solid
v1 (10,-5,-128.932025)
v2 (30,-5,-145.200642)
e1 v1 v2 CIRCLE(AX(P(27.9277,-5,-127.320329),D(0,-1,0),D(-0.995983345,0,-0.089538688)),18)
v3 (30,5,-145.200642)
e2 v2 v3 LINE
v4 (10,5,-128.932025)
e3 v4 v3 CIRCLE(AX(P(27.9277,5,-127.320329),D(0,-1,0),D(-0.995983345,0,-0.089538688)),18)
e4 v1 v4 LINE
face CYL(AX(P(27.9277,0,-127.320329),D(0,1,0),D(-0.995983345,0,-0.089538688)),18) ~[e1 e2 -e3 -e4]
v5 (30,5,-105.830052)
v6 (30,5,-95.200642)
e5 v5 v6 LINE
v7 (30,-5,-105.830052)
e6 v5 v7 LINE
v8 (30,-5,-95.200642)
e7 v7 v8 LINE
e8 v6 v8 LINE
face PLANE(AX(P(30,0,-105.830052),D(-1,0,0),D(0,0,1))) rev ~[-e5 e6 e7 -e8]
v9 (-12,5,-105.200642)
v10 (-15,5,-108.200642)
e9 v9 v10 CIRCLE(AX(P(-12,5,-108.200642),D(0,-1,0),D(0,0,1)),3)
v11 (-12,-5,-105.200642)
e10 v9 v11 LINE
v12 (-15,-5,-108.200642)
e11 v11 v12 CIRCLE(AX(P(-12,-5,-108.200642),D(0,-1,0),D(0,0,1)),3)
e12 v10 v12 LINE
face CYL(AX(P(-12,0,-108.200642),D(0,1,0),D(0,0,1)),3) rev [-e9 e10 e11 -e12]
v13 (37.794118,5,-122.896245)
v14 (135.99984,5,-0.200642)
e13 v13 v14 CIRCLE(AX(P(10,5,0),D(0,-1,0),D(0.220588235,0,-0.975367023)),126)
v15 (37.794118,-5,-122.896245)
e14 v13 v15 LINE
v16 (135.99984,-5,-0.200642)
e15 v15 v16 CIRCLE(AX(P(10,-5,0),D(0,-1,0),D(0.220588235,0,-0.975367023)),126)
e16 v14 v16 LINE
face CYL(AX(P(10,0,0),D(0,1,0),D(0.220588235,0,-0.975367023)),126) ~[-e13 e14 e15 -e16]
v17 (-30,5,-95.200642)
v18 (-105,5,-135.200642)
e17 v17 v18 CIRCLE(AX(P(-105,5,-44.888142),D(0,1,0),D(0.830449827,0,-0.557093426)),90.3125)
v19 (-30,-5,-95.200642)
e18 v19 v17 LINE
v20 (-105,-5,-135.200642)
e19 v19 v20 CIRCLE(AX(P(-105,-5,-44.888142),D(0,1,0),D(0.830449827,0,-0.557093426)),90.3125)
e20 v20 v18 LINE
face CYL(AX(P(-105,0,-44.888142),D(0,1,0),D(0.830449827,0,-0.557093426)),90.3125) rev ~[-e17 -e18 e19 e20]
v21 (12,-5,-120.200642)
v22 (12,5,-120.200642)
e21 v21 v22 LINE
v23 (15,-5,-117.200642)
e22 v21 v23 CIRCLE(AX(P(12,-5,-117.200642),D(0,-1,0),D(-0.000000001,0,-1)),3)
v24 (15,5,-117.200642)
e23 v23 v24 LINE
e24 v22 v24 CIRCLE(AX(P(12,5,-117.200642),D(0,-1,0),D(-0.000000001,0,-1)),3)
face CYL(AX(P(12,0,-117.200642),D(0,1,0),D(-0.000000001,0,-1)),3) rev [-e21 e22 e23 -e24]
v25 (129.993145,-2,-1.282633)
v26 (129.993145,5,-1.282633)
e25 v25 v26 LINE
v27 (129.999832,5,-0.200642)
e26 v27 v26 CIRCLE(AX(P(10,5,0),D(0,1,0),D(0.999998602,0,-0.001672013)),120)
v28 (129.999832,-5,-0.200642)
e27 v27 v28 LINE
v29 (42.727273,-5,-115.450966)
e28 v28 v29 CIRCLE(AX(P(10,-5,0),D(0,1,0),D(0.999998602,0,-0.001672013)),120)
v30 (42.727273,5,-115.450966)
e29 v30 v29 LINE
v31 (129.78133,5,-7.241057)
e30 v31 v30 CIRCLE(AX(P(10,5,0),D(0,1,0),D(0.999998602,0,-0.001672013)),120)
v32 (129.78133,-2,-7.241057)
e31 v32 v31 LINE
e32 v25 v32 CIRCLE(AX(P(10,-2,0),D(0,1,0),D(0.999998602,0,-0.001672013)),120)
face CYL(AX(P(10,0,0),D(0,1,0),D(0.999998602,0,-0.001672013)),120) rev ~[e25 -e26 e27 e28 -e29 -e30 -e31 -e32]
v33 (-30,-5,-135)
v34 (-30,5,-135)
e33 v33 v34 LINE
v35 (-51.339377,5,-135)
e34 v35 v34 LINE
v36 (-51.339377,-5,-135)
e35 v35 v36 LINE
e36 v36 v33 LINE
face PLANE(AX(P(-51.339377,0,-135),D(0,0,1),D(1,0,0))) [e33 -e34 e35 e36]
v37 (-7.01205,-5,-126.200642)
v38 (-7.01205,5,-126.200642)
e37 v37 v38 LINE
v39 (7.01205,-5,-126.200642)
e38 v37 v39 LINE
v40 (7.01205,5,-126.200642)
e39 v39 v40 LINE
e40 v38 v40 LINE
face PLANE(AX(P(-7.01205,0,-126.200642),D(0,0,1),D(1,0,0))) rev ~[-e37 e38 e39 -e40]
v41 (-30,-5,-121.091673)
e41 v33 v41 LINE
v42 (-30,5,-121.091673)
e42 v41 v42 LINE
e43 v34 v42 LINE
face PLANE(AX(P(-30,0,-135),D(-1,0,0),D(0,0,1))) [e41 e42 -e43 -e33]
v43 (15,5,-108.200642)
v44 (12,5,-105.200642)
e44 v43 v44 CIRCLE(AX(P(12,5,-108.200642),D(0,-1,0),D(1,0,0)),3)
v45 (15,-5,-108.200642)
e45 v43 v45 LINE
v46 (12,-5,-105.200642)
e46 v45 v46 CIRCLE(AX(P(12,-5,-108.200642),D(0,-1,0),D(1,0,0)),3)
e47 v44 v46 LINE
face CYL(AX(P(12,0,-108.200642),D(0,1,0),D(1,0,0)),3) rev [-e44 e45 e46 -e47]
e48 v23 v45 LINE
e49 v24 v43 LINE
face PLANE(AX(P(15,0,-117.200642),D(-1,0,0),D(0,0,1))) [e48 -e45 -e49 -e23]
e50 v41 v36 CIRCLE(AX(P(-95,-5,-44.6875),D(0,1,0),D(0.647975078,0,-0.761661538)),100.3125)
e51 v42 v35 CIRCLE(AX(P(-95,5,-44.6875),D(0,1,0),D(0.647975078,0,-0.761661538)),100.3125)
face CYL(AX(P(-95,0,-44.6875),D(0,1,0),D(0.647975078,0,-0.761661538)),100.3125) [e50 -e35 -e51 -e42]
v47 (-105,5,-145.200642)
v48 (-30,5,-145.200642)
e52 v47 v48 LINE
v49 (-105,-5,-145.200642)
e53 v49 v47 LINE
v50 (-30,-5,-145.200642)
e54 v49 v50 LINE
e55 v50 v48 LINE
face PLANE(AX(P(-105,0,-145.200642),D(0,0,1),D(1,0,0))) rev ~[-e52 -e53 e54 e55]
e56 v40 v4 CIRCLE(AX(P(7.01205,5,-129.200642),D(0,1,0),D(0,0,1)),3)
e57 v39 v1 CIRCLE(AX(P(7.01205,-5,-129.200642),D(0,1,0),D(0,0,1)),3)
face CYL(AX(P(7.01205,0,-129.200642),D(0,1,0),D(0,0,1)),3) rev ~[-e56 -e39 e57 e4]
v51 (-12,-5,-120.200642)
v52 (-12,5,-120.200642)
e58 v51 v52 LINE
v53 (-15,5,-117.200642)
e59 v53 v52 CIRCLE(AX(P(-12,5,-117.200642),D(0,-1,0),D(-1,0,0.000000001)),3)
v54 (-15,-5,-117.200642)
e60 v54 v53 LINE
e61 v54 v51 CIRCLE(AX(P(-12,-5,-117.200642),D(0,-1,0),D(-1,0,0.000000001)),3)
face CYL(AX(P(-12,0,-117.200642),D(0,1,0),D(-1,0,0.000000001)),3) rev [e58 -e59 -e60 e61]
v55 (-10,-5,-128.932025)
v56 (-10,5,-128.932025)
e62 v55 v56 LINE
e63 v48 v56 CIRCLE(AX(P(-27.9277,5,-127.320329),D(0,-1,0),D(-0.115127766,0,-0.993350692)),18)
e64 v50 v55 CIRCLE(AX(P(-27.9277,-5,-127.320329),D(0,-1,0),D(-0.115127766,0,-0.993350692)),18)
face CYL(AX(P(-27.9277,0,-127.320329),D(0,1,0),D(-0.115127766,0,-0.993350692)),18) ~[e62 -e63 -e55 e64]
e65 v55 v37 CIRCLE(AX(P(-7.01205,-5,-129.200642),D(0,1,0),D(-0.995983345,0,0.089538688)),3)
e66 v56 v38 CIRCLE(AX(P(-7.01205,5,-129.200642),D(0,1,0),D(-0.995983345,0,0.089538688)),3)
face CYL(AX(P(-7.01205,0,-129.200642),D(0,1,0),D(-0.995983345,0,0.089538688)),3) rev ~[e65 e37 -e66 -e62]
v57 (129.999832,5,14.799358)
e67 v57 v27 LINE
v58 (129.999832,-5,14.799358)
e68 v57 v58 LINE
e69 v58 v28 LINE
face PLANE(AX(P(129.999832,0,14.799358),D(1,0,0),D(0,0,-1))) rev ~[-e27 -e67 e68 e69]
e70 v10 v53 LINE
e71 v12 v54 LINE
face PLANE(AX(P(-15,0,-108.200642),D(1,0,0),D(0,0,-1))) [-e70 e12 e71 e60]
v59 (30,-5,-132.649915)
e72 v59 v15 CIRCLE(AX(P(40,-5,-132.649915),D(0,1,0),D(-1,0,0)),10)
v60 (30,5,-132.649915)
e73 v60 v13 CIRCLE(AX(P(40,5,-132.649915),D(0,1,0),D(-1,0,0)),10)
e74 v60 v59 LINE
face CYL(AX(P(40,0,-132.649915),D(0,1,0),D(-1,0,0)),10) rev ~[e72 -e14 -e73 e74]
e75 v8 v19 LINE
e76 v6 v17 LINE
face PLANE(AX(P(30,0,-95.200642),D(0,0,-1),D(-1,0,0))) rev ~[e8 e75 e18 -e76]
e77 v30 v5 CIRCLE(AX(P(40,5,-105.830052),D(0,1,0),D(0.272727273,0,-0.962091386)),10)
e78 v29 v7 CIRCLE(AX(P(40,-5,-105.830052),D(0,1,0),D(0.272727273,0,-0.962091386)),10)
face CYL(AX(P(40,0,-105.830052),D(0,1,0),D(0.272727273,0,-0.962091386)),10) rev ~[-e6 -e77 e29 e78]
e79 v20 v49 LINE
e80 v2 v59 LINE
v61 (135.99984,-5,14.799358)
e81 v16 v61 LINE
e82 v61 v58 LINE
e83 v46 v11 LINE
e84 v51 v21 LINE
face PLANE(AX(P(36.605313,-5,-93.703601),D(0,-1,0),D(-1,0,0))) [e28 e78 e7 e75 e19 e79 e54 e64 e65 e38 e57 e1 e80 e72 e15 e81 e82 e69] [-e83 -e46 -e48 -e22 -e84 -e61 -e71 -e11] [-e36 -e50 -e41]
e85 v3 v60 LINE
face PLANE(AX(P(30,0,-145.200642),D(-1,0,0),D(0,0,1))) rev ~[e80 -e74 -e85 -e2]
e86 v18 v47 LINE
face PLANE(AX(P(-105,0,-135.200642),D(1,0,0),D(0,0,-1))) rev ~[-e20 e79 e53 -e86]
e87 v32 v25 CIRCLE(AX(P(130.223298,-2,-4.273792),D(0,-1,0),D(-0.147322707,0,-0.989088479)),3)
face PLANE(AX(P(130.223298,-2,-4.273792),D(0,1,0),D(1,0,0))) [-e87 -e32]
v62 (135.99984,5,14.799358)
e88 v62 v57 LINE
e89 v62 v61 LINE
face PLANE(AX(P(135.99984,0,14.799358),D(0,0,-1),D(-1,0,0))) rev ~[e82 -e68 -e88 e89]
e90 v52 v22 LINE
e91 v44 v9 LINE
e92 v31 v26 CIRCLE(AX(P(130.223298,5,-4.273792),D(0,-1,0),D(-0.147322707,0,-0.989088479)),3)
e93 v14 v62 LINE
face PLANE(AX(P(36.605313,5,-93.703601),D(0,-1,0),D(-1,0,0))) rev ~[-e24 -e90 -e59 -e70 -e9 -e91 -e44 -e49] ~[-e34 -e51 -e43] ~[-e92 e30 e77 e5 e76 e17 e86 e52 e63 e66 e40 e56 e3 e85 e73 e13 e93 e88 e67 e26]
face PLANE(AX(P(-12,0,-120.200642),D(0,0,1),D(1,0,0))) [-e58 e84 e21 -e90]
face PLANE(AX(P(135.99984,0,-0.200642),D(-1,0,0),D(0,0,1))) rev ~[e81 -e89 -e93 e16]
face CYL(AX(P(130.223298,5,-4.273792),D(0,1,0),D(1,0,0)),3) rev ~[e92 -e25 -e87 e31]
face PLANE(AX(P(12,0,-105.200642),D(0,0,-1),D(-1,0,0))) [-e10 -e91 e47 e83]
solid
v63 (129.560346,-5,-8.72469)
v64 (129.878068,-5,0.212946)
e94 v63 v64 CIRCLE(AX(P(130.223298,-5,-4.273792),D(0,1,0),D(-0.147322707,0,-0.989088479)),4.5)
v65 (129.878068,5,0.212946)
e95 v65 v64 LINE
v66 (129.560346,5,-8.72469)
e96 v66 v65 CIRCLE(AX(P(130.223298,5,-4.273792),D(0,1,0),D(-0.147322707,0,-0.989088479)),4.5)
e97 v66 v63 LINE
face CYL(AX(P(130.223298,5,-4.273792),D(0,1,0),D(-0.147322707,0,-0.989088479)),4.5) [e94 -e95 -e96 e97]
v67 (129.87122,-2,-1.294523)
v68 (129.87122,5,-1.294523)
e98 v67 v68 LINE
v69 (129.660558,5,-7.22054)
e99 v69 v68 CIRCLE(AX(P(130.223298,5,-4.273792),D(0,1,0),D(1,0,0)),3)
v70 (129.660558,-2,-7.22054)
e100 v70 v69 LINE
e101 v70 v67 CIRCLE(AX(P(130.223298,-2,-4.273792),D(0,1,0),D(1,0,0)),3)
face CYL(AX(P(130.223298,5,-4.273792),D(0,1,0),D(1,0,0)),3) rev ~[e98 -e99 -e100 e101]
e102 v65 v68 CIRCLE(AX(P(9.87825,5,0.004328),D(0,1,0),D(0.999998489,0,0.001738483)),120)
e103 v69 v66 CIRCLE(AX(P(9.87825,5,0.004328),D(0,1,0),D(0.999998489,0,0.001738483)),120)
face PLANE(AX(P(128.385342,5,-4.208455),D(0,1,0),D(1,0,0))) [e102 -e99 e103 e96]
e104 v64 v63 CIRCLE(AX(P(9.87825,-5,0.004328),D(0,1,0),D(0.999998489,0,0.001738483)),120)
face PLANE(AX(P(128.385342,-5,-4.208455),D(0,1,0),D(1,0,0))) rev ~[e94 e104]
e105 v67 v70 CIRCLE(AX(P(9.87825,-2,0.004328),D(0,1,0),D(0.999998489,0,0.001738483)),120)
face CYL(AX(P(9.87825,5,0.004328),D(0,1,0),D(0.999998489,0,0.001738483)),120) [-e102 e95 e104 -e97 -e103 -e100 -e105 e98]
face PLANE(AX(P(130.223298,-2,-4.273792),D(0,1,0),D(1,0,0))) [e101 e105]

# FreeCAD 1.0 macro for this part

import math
import FreeCAD as App
import Part
import Sketcher
Q = App.Units.Quantity

doc = App.newDocument("Part")
params = doc.addObject("Spreadsheet::Sheet", "Params")
for row, (alias, value) in enumerate([
    ("sketch1_radius", "18 mm"),
    ("sketch1_radius2", "3 mm"),
    ("sketch1_radius3", "10 mm"),
    ("sketch1_radius4", "120 mm"),
    ("sketch1_radius5", "126 mm"),
    ("pad1_length", "10 mm"),
    ("sketch2_radius", "120 mm"),
    ("sketch2_radius2", "4.5 mm"),
    ("pad2_length", "10 mm"),
    ("sketch3_diameter", "6 mm"),
    ("pad3_length", "7 mm"),
], start=1):
    params.set(f"A{row}", alias)
    params.set(f"B{row}", "=" + value)
    params.setAlias(f"B{row}", alias)

body = doc.addObject("PartDesign::Body", "Body")

sketch1 = body.newObject("Sketcher::SketchObject", "Sketch")
sketch1.AttachmentSupport = (doc.getObject("XZ_Plane"), [""])
sketch1.MapMode = "FlatFace"
sketch1.addGeometry([
    Part.LineSegment(App.Vector(30, -132.6, 0), App.Vector(30, -145.2, 0)),
    Part.ArcOfCircle(Part.Circle(App.Vector(27.9, -127.3, 0), App.Vector(0, 0, 1), 18), math.radians(-175), math.radians(-83)),
    Part.ArcOfCircle(Part.Circle(App.Vector(7, -129.2, 0), App.Vector(0, 0, 1), 3), math.radians(5), math.radians(90)),
    Part.LineSegment(App.Vector(7, -126.2, 0), App.Vector(-7, -126.2, 0)),
    Part.ArcOfCircle(Part.Circle(App.Vector(-7, -129.2, 0), App.Vector(0, 0, 1), 3), math.radians(90), math.radians(175)),
    Part.ArcOfCircle(Part.Circle(App.Vector(-27.9, -127.3, 0), App.Vector(0, 0, 1), 18), math.radians(-97), math.radians(-5)),
    Part.LineSegment(App.Vector(-30, -145.2, 0), App.Vector(-105, -145.2, 0)),
    Part.LineSegment(App.Vector(-105, -145.2, 0), App.Vector(-105, -135.2, 0)),
    Part.ArcOfCircle(Part.Circle(App.Vector(-105, -44.9, 0), App.Vector(0, 0, 1), 90.3), math.radians(-90), math.radians(-34)),
    Part.LineSegment(App.Vector(-30, -95.2, 0), App.Vector(30, -95.2, 0)),
    Part.LineSegment(App.Vector(30, -95.2, 0), App.Vector(30, -105.8, 0)),
    Part.ArcOfCircle(Part.Circle(App.Vector(40, -105.8, 0), App.Vector(0, 0, 1), 10), math.radians(180), math.radians(286)),
    Part.ArcOfCircle(Part.Circle(App.Vector(10, 0, 0), App.Vector(0, 0, 1), 120), math.radians(-74), math.radians(0)),
    Part.LineSegment(App.Vector(130, -0.2, 0), App.Vector(130, 14.8, 0)),
    Part.LineSegment(App.Vector(130, 14.8, 0), App.Vector(136, 14.8, 0)),
    Part.LineSegment(App.Vector(136, 14.8, 0), App.Vector(136, -0.2, 0)),
    Part.ArcOfCircle(Part.Circle(App.Vector(10, 0, 0), App.Vector(0, 0, 1), 126), math.radians(-77), math.radians(0)),
    Part.ArcOfCircle(Part.Circle(App.Vector(40, -132.6, 0), App.Vector(0, 0, 1), 10), math.radians(103), math.radians(180)),
    Part.LineSegment(App.Vector(-15, -108.2, 0), App.Vector(-15, -117.2, 0)),
    Part.ArcOfCircle(Part.Circle(App.Vector(-12, -117.2, 0), App.Vector(0, 0, 1), 3), math.radians(180), math.radians(270)),
    Part.LineSegment(App.Vector(-12, -120.2, 0), App.Vector(12, -120.2, 0)),
    Part.ArcOfCircle(Part.Circle(App.Vector(12, -117.2, 0), App.Vector(0, 0, 1), 3), math.radians(-90), math.radians(0)),
    Part.LineSegment(App.Vector(15, -117.2, 0), App.Vector(15, -108.2, 0)),
    Part.ArcOfCircle(Part.Circle(App.Vector(12, -108.2, 0), App.Vector(0, 0, 1), 3), math.radians(0), math.radians(90)),
    Part.LineSegment(App.Vector(12, -105.2, 0), App.Vector(-12, -105.2, 0)),
    Part.ArcOfCircle(Part.Circle(App.Vector(-12, -108.2, 0), App.Vector(0, 0, 1), 3), math.radians(90), math.radians(180)),
    Part.LineSegment(App.Vector(-51.3, -135, 0), App.Vector(-30, -135, 0)),
    Part.LineSegment(App.Vector(-30, -135, 0), App.Vector(-30, -121.1, 0)),
    Part.ArcOfCircle(Part.Circle(App.Vector(-95, -44.7, 0), App.Vector(0, 0, 1), 100.3), math.radians(-64.2), math.radians(-49.61)),
], False)
sketch1.addConstraint([
    Sketcher.Constraint("Coincident", 0, 2, 1, 2),
    Sketcher.Constraint("Tangent", 1, 1, 2, 1),
    Sketcher.Constraint("Tangent", 2, 2, 3, 1),
    Sketcher.Constraint("Tangent", 3, 2, 4, 1),
    Sketcher.Constraint("Tangent", 4, 2, 5, 2),
    Sketcher.Constraint("Coincident", 5, 1, 6, 1),
    Sketcher.Constraint("Coincident", 6, 2, 7, 1),
    Sketcher.Constraint("Coincident", 7, 2, 8, 1),
    Sketcher.Constraint("Coincident", 8, 2, 9, 1),
    Sketcher.Constraint("Coincident", 9, 2, 10, 1),
    Sketcher.Constraint("Tangent", 10, 2, 11, 1),
    Sketcher.Constraint("Tangent", 11, 2, 12, 1),
    Sketcher.Constraint("Coincident", 12, 2, 13, 1),
    Sketcher.Constraint("Coincident", 13, 2, 14, 1),
    Sketcher.Constraint("Coincident", 14, 2, 15, 1),
    Sketcher.Constraint("Coincident", 15, 2, 16, 2),
    Sketcher.Constraint("Tangent", 16, 1, 17, 1),
    Sketcher.Constraint("Tangent", 17, 2, 0, 1),
    Sketcher.Constraint("Tangent", 18, 2, 19, 1),
    Sketcher.Constraint("Tangent", 19, 2, 20, 1),
    Sketcher.Constraint("Tangent", 20, 2, 21, 1),
    Sketcher.Constraint("Tangent", 21, 2, 22, 1),
    Sketcher.Constraint("Tangent", 22, 2, 23, 1),
    Sketcher.Constraint("Tangent", 23, 2, 24, 1),
    Sketcher.Constraint("Tangent", 24, 2, 25, 1),
    Sketcher.Constraint("Tangent", 25, 2, 18, 1),
    Sketcher.Constraint("Coincident", 26, 2, 27, 1),
    Sketcher.Constraint("Coincident", 27, 2, 28, 2),
    Sketcher.Constraint("Coincident", 28, 1, 26, 1),
    Sketcher.Constraint("Vertical", 0),
    Sketcher.Constraint("Horizontal", 3),
    Sketcher.Constraint("Horizontal", 6),
    Sketcher.Constraint("Vertical", 7),
    Sketcher.Constraint("Horizontal", 9),
    Sketcher.Constraint("Vertical", 10),
    Sketcher.Constraint("Vertical", 13),
    Sketcher.Constraint("Horizontal", 14),
    Sketcher.Constraint("Vertical", 15),
    Sketcher.Constraint("Vertical", 18),
    Sketcher.Constraint("Horizontal", 20),
    Sketcher.Constraint("Vertical", 22),
    Sketcher.Constraint("Horizontal", 24),
    Sketcher.Constraint("Horizontal", 26),
    Sketcher.Constraint("Vertical", 27),
    Sketcher.Constraint("Coincident", 16, 3, 12, 3),
    Sketcher.Constraint("Equal", 2, 4),
    Sketcher.Constraint("Equal", 1, 5),
    Sketcher.Constraint("Equal", 11, 17),
    Sketcher.Constraint("Equal", 4, 19),
    Sketcher.Constraint("Equal", 19, 21),
    Sketcher.Constraint("Equal", 21, 23),
    Sketcher.Constraint("Equal", 23, 25),
    Sketcher.Constraint("Symmetric", 1, 3, 5, 3, -2),
    Sketcher.Constraint("PointOnObject", 12, 3, -1),
    Sketcher.Constraint("Horizontal", 0, 2, 5, 1),
    Sketcher.Constraint("Horizontal", 12, 2, 15, 2),
    Sketcher.Constraint("Vertical", 11, 3, 17, 3),
    Sketcher.Constraint("Vertical", 16, 3, 1, 1),
    Sketcher.Constraint("Vertical", 8, 3, 6, 2),
    Sketcher.Constraint("Vertical", 5, 1, 8, 2),
    Sketcher.Constraint("Vertical", 8, 2, 26, 2),
    Sketcher.Constraint("Radius", 1, Q("18 mm")),
    Sketcher.Constraint("Radius", 2, Q("3 mm")),
    Sketcher.Constraint("Radius", 11, Q("10 mm")),
    Sketcher.Constraint("Radius", 12, Q("120 mm")),
    Sketcher.Constraint("Radius", 16, Q("126 mm")),
    Sketcher.Constraint("DistanceX", 6, 2, 6, 1, Q("75 mm")),
    Sketcher.Constraint("DistanceX", 9, 1, 9, 2, Q("60 mm")),
    Sketcher.Constraint("DistanceX", 20, 1, 20, 2, Q("24 mm")),
    Sketcher.Constraint("DistanceY", 7, 1, 7, 2, Q("10 mm")),
    Sketcher.Constraint("DistanceY", 13, 1, 13, 2, Q("15 mm")),
    Sketcher.Constraint("DistanceY", 18, 2, 18, 1, Q("9 mm")),
    Sketcher.Constraint("DistanceX", -1, 1, 12, 3, Q("10 mm")),
    Sketcher.Constraint("DistanceX", 19, 3, -1, 1, Q("12 mm")),
    Sketcher.Constraint("DistanceX", 28, 3, -1, 1, Q("95 mm")),
    Sketcher.Constraint("DistanceY", 26, 2, -1, 1, Q("135 mm")),
    Sketcher.Constraint("DistanceY", 4, 3, 19, 3, Q("12 mm")),
    Sketcher.Constraint("DistanceY", 0, 2, 2, 3, Q("16 mm")),
    Sketcher.Constraint("DistanceY", 25, 3, 8, 2, Q("13 mm")),
    Sketcher.Constraint("DistanceY", 9, 2, 12, 2, Q("95 mm")),
    Sketcher.Constraint("Radius", 28, Q("100.3125 mm")),
    Sketcher.Constraint("DistanceY", 10, 2, 10, 1, Q("10.629411 mm")),
    Sketcher.Constraint("DistanceY", 28, 3, -1, 1, Q("44.6875 mm")),
])
sketch1.setExpression("Constraints[61]", "Params.sketch1_radius")
sketch1.setExpression("Constraints[62]", "Params.sketch1_radius2")
sketch1.setExpression("Constraints[63]", "Params.sketch1_radius3")
sketch1.setExpression("Constraints[64]", "Params.sketch1_radius4")
sketch1.setExpression("Constraints[65]", "Params.sketch1_radius5")
pad1 = body.newObject("PartDesign::Pad", "Pad")
pad1.Profile = sketch1
pad1.setExpression("Length", "Params.pad1_length")
pad1.Midplane = True
body2 = doc.addObject("PartDesign::Body", "Body001")

sketch2 = body2.newObject("Sketcher::SketchObject", "Sketch001")
sketch2.AttachmentSupport = (doc.getObject("XZ_Plane001"), [""])
sketch2.MapMode = "FlatFace"
sketch2.AttachmentOffset = App.Placement(App.Vector(0, 0, -5), App.Rotation())
sketch2.addGeometry([
    Part.ArcOfCircle(Part.Circle(App.Vector(130.2, -4.3, 0), App.Vector(0, 0, 1), 4.5), math.radians(94), math.radians(262)),
    Part.ArcOfCircle(Part.Circle(App.Vector(9.9, 0, 0), App.Vector(0, 0, 1), 120), math.radians(-4.17), math.radians(0.1)),
], False)
sketch2.addConstraint([
    Sketcher.Constraint("Coincident", 0, 1, 1, 2),
    Sketcher.Constraint("Coincident", 1, 1, 0, 2),
    Sketcher.Constraint("Radius", 1, Q("120 mm")),
    Sketcher.Constraint("Radius", 0, Q("4.5 mm")),
    Sketcher.Constraint("DistanceX", -1, 1, 0, 3, Q("130.223298 mm")),
    Sketcher.Constraint("DistanceY", 0, 3, -1, 1, Q("4.273792 mm")),
    Sketcher.Constraint("DistanceX", -1, 1, 1, 3, Q("9.87825 mm")),
    Sketcher.Constraint("DistanceY", -1, 1, 1, 3, Q("0.004328 mm")),
])
sketch2.setExpression("Constraints[2]", "Params.sketch2_radius")
sketch2.setExpression("Constraints[3]", "Params.sketch2_radius2")
pad2 = body2.newObject("PartDesign::Pad", "Pad001")
pad2.Profile = sketch2
pad2.setExpression("Length", "Params.pad2_length")
body3 = doc.addObject("PartDesign::Body", "Body002")

sketch3 = body3.newObject("Sketcher::SketchObject", "Sketch002")
sketch3.AttachmentSupport = (doc.getObject("XZ_Plane002"), [""])
sketch3.MapMode = "FlatFace"
sketch3.AttachmentOffset = App.Placement(App.Vector(0, 0, -5), App.Rotation())
sketch3.addGeometry(Part.Circle(App.Vector(130.2, -4.3, 0), App.Vector(0, 0, 1), 3), False)
sketch3.addConstraint([
    Sketcher.Constraint("Diameter", 0, Q("6 mm")),
    Sketcher.Constraint("DistanceX", -1, 1, 0, 3, Q("130.223298 mm")),
    Sketcher.Constraint("DistanceY", 0, 3, -1, 1, Q("4.273792 mm")),
])
sketch3.setExpression("Constraints[0]", "Params.sketch3_diameter")
pad3 = body3.newObject("PartDesign::Pad", "Pad002")
pad3.Profile = sketch3
pad3.setExpression("Length", "Params.pad3_length")
doc.recompute()

body4 = doc.addObject("PartDesign::Body", "Body003")
body4.BaseFeature = body3
boolean = body.newObject("PartDesign::Boolean", "Boolean")
boolean.Type = "Cut"
boolean.addObjects([body4])
doc.recompute()

boolean2 = body2.newObject("PartDesign::Boolean", "Boolean001")
boolean2.Type = "Cut"
boolean2.addObjects([body3])

doc.recompute()
